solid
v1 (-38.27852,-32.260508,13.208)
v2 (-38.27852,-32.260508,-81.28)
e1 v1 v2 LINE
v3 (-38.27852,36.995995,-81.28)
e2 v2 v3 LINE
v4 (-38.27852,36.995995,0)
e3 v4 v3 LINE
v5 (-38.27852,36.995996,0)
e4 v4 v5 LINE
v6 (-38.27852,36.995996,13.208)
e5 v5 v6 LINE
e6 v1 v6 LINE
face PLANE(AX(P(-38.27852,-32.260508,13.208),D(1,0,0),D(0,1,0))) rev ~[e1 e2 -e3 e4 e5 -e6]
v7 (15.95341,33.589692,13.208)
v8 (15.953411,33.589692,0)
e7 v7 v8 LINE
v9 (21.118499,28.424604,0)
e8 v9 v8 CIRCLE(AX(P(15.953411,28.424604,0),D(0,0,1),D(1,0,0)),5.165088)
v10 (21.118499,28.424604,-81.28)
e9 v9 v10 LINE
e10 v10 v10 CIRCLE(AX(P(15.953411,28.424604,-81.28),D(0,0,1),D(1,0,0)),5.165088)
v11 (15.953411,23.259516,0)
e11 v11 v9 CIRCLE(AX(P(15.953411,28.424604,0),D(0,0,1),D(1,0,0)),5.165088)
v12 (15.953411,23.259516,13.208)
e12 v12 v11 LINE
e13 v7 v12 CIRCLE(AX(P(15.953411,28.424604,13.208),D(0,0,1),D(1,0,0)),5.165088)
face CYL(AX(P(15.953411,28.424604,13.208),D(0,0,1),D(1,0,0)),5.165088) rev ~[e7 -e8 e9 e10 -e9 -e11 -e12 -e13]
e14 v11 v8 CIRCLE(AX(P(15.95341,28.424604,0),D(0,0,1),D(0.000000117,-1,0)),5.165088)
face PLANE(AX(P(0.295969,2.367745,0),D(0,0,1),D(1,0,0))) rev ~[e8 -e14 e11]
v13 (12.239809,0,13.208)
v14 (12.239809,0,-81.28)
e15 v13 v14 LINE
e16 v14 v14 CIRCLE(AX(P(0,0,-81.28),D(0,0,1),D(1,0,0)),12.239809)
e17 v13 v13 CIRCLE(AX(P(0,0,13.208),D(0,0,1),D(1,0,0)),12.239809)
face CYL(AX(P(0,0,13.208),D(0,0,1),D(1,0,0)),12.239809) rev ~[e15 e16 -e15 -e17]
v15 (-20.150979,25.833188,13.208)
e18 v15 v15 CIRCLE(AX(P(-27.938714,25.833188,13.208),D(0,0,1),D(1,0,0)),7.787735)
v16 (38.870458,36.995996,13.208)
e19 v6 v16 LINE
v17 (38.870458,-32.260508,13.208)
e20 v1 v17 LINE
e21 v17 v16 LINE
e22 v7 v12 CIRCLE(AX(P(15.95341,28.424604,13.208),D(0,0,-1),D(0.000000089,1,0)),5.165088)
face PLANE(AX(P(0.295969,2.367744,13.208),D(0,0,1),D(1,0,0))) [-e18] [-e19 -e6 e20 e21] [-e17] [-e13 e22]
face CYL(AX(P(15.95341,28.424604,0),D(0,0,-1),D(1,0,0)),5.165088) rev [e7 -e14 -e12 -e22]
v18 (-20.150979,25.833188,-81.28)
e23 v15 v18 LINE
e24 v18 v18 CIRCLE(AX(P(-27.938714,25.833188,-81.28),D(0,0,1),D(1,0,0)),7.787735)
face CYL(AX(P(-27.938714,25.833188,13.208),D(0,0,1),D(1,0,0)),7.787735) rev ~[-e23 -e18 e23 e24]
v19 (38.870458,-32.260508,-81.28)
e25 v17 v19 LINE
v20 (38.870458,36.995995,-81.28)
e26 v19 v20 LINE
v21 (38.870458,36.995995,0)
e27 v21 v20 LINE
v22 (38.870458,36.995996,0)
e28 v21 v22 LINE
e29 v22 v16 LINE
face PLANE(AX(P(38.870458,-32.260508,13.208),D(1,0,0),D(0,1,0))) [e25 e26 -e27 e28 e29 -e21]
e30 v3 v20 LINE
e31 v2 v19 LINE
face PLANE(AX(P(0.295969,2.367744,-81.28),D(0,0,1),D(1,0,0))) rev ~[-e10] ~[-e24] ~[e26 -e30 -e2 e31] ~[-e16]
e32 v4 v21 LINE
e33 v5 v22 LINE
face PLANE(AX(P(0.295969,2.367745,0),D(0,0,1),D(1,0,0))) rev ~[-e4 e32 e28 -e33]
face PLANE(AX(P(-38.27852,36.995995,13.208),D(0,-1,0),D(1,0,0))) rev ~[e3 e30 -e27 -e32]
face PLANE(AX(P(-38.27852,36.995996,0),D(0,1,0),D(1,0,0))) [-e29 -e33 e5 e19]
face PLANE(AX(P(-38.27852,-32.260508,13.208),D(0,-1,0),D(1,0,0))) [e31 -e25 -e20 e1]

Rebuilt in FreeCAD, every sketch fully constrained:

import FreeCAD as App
import Part
import Sketcher

V = App.Vector
Q = App.Units.Quantity

doc = App.newDocument("Part")
body = doc.addObject("PartDesign::Body", "Body")

sketch1 = body.newObject("Sketcher::SketchObject", "Sketch")
sketch1.AttachmentSupport = (doc.getObject("XY_Plane"), [""])
sketch1.MapMode = "FlatFace"
sketch1.addGeometry([
    Part.LineSegment(V(-38, 37, 0), V(-38, -32, 0)),
    Part.LineSegment(V(-38, -32, 0), V(39, -32, 0)),
    Part.LineSegment(V(39, -32, 0), V(39, 37, 0)),
    Part.LineSegment(V(39, 37, 0), V(-38, 37, 0)),
    Part.Circle(V(0, 0, 0), V(0, 0, 1), 12),
    Part.Circle(V(-28, 26, 0), V(0, 0, 1), 8),
    Part.Circle(V(16, 28, 0), V(0, 0, 1), 5),
], False)
sketch1.addConstraint([
    Sketcher.Constraint("Coincident", 0, 2, 1, 1),
    Sketcher.Constraint("Coincident", 1, 2, 2, 1),
    Sketcher.Constraint("Coincident", 2, 2, 3, 1),
    Sketcher.Constraint("Coincident", 3, 2, 0, 1),
    Sketcher.Constraint("Vertical", 0),
    Sketcher.Constraint("Horizontal", 1),
    Sketcher.Constraint("Vertical", 2),
    Sketcher.Constraint("Horizontal", 3),
    Sketcher.Constraint("Coincident", 4, 3, -1, 1),
    Sketcher.Constraint("Diameter", 6, Q("0.4066998 in")),
    Sketcher.Constraint("Diameter", 5, 15.57547),
    Sketcher.Constraint("Diameter", 4, 24.479618),
    Sketcher.Constraint("DistanceX", 1, 1, 1, 2, 77.148978),
    Sketcher.Constraint("DistanceY", 0, 2, 0, 1, 69.256503),
    Sketcher.Constraint("DistanceY", -1, 1, 5, 3, 25.833188),
    Sketcher.Constraint("DistanceX", -1, 1, 6, 3, 15.95341),
    Sketcher.Constraint("DistanceX", 0, 2, -1, 1, 38.27852),
    Sketcher.Constraint("DistanceY", 0, 2, 6, 3, 60.68511),
    Sketcher.Constraint("DistanceY", 5, 3, 2, 2, 11.162808),
    Sketcher.Constraint("DistanceX", 5, 3, -1, 1, 27.938714),
])
pad1 = body.newObject("PartDesign::Pad", "Pad")
pad1.Profile = sketch1
pad1.Length = Q("0.52 in")

sketch2 = body.newObject("Sketcher::SketchObject", "Sketch001")
sketch2.AttachmentSupport = (doc.getObject("XY_Plane"), [""])
sketch2.MapMode = "FlatFace"
sketch2.AttachmentOffset = App.Placement(V(0, 0, 0.52 * 25.4), App.Rotation())
sketch2.addGeometry([
    Part.LineSegment(V(-38, 37, 0), V(-38, -32, 0)),
    Part.LineSegment(V(-38, -32, 0), V(39, -32, 0)),
    Part.LineSegment(V(39, -32, 0), V(39, 37, 0)),
    Part.LineSegment(V(39, 37, 0), V(-38, 37, 0)),
    Part.Circle(V(0, 0, 0), V(0, 0, 1), 12),
    Part.Circle(V(-28, 26, 0), V(0, 0, 1), 8),
    Part.Circle(V(16, 28, 0), V(0, 0, 1), 5),
], False)
sketch2.addConstraint([
    Sketcher.Constraint("Coincident", 0, 2, 1, 1),
    Sketcher.Constraint("Coincident", 1, 2, 2, 1),
    Sketcher.Constraint("Coincident", 2, 2, 3, 1),
    Sketcher.Constraint("Coincident", 3, 2, 0, 1),
    Sketcher.Constraint("Vertical", 0),
    Sketcher.Constraint("Horizontal", 1),
    Sketcher.Constraint("Vertical", 2),
    Sketcher.Constraint("Horizontal", 3),
    Sketcher.Constraint("Coincident", 4, 3, -1, 1),
    Sketcher.Constraint("Diameter", 6, Q("0.4066998 in")),
    Sketcher.Constraint("Diameter", 5, 15.57547),
    Sketcher.Constraint("Diameter", 4, 24.479618),
    Sketcher.Constraint("DistanceX", 1, 1, 1, 2, 77.148978),
    Sketcher.Constraint("DistanceY", 0, 2, 0, 1, 69.256503),
    Sketcher.Constraint("DistanceY", -1, 1, 5, 3, 25.833188),
    Sketcher.Constraint("DistanceX", -1, 1, 6, 3, 15.953411),
    Sketcher.Constraint("DistanceX", 0, 2, -1, 1, 38.27852),
    Sketcher.Constraint("DistanceY", 0, 2, 6, 3, 60.685112),
    Sketcher.Constraint("DistanceX", 5, 3, -1, 1, 27.938714),
    Sketcher.Constraint("DistanceY", -1, 1, 6, 3, 28.424604),
])
pad2 = body.newObject("PartDesign::Pad", "Pad001")
pad2.Profile = sketch2
pad2.Length = Q("3.72 in")
pad2.Reversed = True

doc.recompute()
